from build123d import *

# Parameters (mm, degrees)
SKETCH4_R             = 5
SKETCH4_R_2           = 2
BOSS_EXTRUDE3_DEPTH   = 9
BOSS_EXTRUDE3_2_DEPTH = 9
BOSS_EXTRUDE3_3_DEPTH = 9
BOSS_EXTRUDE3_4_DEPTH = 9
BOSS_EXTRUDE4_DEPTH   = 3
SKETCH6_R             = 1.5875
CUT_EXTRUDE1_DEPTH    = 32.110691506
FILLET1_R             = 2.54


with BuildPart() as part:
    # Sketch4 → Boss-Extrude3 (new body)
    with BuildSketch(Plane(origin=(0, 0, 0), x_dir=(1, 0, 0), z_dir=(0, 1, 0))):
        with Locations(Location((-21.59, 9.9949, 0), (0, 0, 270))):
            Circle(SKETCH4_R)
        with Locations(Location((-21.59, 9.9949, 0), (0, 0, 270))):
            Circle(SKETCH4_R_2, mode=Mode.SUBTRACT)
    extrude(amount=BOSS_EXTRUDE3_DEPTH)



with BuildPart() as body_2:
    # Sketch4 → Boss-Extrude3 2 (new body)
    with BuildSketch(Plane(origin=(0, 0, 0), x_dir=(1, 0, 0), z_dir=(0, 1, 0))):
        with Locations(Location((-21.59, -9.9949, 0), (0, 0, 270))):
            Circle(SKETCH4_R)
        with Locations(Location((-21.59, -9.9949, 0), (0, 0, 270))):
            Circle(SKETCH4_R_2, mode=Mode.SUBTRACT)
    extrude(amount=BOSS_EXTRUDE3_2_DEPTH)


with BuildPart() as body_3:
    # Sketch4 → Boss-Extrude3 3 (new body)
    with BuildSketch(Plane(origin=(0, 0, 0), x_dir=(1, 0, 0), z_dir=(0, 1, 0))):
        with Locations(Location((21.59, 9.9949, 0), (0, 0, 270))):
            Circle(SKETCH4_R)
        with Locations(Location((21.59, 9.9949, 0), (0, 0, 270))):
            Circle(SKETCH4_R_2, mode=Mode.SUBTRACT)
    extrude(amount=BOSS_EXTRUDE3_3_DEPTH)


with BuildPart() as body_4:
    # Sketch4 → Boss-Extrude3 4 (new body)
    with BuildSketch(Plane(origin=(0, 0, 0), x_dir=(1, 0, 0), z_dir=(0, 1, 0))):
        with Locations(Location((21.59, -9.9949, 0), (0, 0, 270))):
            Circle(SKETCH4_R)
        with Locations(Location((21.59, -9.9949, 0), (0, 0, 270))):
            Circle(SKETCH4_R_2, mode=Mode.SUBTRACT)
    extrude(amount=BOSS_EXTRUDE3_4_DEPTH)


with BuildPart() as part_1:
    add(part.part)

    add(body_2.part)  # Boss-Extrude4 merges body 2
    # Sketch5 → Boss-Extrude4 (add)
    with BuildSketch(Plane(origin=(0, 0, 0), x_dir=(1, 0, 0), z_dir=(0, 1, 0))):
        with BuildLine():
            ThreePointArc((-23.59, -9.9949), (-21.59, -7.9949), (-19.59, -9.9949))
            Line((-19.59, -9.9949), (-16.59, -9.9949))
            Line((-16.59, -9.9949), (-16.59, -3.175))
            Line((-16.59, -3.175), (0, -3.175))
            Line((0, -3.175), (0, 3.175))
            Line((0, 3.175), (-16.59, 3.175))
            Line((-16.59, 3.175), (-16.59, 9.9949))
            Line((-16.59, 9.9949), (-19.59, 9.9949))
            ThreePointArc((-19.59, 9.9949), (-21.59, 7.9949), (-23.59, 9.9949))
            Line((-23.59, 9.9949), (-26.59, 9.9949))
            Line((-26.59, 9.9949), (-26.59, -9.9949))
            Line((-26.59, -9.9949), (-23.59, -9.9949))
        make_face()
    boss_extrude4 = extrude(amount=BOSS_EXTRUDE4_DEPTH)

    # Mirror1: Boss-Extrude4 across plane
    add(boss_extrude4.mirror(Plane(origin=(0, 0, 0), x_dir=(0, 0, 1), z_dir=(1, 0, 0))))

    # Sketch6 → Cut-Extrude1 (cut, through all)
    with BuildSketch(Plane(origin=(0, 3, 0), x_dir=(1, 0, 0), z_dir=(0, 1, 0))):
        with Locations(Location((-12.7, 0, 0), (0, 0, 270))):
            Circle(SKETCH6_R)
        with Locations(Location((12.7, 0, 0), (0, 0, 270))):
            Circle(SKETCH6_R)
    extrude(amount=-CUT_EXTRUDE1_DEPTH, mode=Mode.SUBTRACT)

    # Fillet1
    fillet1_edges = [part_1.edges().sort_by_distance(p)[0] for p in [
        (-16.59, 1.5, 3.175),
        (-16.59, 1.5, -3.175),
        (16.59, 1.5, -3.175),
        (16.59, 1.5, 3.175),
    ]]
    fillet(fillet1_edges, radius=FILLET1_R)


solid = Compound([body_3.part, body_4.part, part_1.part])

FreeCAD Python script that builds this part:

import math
import FreeCAD as App
import Part
import Sketcher


def edges_at(feature, points):
    """Names of the edges that pass closest to the given points."""
    edges = feature.Shape.Edges
    near = lambda p: min(range(len(edges)), key=lambda i: edges[i].distToShape(Part.Vertex(*p))[0])
    return sorted({f"Edge{near(p) + 1}" for p in points})

doc = App.newDocument("Part")
body = doc.addObject("PartDesign::Body", "Body")

sketch1 = body.newObject("Sketcher::SketchObject", "Sketch")
sketch1.AttachmentSupport = (doc.getObject("XZ_Plane"), [""])
sketch1.MapMode = "FlatFace"
sketch1.addGeometry([
    Part.Circle(App.Vector(-21.6, -10, 0), App.Vector(0, 0, 1), 5),
    Part.Circle(App.Vector(-21.6, -10, 0), App.Vector(0, 0, 1), 2),
], False)
sketch1.addConstraint([
    Sketcher.Constraint("Coincident", 1, 3, 0, 3),
    Sketcher.Constraint("Diameter", 0, 10.0),
    Sketcher.Constraint("Diameter", 1, 4.0),
    Sketcher.Constraint("DistanceX", 0, 3, -1, 1, 21.59),
    Sketcher.Constraint("DistanceY", 0, 3, -1, 1, 9.9949),
])
pad1 = body.newObject("PartDesign::Pad", "Pad")
pad1.Profile = sketch1
pad1.Length = 9
pad1.Reversed = True
body2 = doc.addObject("PartDesign::Body", "Body001")

sketch2 = body2.newObject("Sketcher::SketchObject", "Sketch001")
sketch2.AttachmentSupport = (doc.getObject("XZ_Plane001"), [""])
sketch2.MapMode = "FlatFace"
sketch2.addGeometry([
    Part.Circle(App.Vector(-21.6, 10, 0), App.Vector(0, 0, 1), 5),
    Part.Circle(App.Vector(-21.6, 10, 0), App.Vector(0, 0, 1), 2),
], False)
sketch2.addConstraint([
    Sketcher.Constraint("Coincident", 1, 3, 0, 3),
    Sketcher.Constraint("Diameter", 0, 10.0),
    Sketcher.Constraint("Diameter", 1, 4.0),
    Sketcher.Constraint("DistanceX", 0, 3, -1, 1, 21.59),
    Sketcher.Constraint("DistanceY", -1, 1, 0, 3, 9.9949),
])
pad2 = body2.newObject("PartDesign::Pad", "Pad001")
pad2.Profile = sketch2
pad2.Length = 9
pad2.Reversed = True
body3 = doc.addObject("PartDesign::Body", "Body002")

sketch3 = body3.newObject("Sketcher::SketchObject", "Sketch002")
sketch3.AttachmentSupport = (doc.getObject("XZ_Plane002"), [""])
sketch3.MapMode = "FlatFace"
sketch3.addGeometry([
    Part.Circle(App.Vector(21.6, -10, 0), App.Vector(0, 0, 1), 5),
    Part.Circle(App.Vector(21.6, -10, 0), App.Vector(0, 0, 1), 2),
], False)
sketch3.addConstraint([
    Sketcher.Constraint("Coincident", 1, 3, 0, 3),
    Sketcher.Constraint("Diameter", 0, 10.0),
    Sketcher.Constraint("Diameter", 1, 4.0),
    Sketcher.Constraint("DistanceX", -1, 1, 0, 3, 21.59),
    Sketcher.Constraint("DistanceY", 0, 3, -1, 1, 9.9949),
])
pad3 = body3.newObject("PartDesign::Pad", "Pad002")
pad3.Profile = sketch3
pad3.Length = 9
pad3.Reversed = True
body4 = doc.addObject("PartDesign::Body", "Body003")

sketch4 = body4.newObject("Sketcher::SketchObject", "Sketch003")
sketch4.AttachmentSupport = (doc.getObject("XZ_Plane003"), [""])
sketch4.MapMode = "FlatFace"
sketch4.addGeometry([
    Part.Circle(App.Vector(21.6, 10, 0), App.Vector(0, 0, 1), 5),
    Part.Circle(App.Vector(21.6, 10, 0), App.Vector(0, 0, 1), 2),
], False)
sketch4.addConstraint([
    Sketcher.Constraint("Coincident", 1, 3, 0, 3),
    Sketcher.Constraint("Diameter", 0, 10.0),
    Sketcher.Constraint("Diameter", 1, 4.0),
    Sketcher.Constraint("DistanceX", -1, 1, 0, 3, 21.59),
    Sketcher.Constraint("DistanceY", -1, 1, 0, 3, 9.9949),
])
pad4 = body4.newObject("PartDesign::Pad", "Pad003")
pad4.Profile = sketch4
pad4.Length = 9
pad4.Reversed = True
body.AllowCompound = True
doc.recompute()

boolean = body.newObject("PartDesign::Boolean", "Boolean")
boolean.Type = "Fuse"
boolean.addObjects([body2])

sketch5 = body.newObject("Sketcher::SketchObject", "Sketch004")
sketch5.AttachmentSupport = (doc.getObject("XZ_Plane"), [""])
sketch5.MapMode = "FlatFace"
sketch5.addGeometry([
    Part.ArcOfCircle(Part.Circle(App.Vector(-21.6, 10, 0), App.Vector(0, 0, 1), 2), math.radians(180), math.radians(360)),
    Part.LineSegment(App.Vector(-19.6, 10, 0), App.Vector(-16.6, 10, 0)),
    Part.LineSegment(App.Vector(-16.6, 10, 0), App.Vector(-16.6, 3.2, 0)),
    Part.LineSegment(App.Vector(-16.6, 3.2, 0), App.Vector(0, 3.2, 0)),
    Part.LineSegment(App.Vector(0, 3.2, 0), App.Vector(0, -3.2, 0)),
    Part.LineSegment(App.Vector(0, -3.2, 0), App.Vector(-16.6, -3.2, 0)),
    Part.LineSegment(App.Vector(-16.6, -3.2, 0), App.Vector(-16.6, -10, 0)),
    Part.LineSegment(App.Vector(-16.6, -10, 0), App.Vector(-19.6, -10, 0)),
    Part.ArcOfCircle(Part.Circle(App.Vector(-21.6, -10, 0), App.Vector(0, 0, 1), 2), math.radians(0), math.radians(180)),
    Part.LineSegment(App.Vector(-23.6, -10, 0), App.Vector(-26.6, -10, 0)),
    Part.LineSegment(App.Vector(-26.6, -10, 0), App.Vector(-26.6, 10, 0)),
    Part.LineSegment(App.Vector(-26.6, 10, 0), App.Vector(-23.6, 10, 0)),
], False)
sketch5.addConstraint([
    Sketcher.Constraint("Coincident", 0, 2, 1, 1),
    Sketcher.Constraint("Coincident", 1, 2, 2, 1),
    Sketcher.Constraint("Coincident", 2, 2, 3, 1),
    Sketcher.Constraint("Coincident", 3, 2, 4, 1),
    Sketcher.Constraint("Coincident", 4, 2, 5, 1),
    Sketcher.Constraint("Coincident", 5, 2, 6, 1),
    Sketcher.Constraint("Coincident", 6, 2, 7, 1),
    Sketcher.Constraint("Coincident", 7, 2, 8, 1),
    Sketcher.Constraint("Coincident", 8, 2, 9, 1),
    Sketcher.Constraint("Coincident", 9, 2, 10, 1),
    Sketcher.Constraint("Coincident", 10, 2, 11, 1),
    Sketcher.Constraint("Coincident", 11, 2, 0, 1),
    Sketcher.Constraint("Horizontal", 1),
    Sketcher.Constraint("Vertical", 2),
    Sketcher.Constraint("Horizontal", 3),
    Sketcher.Constraint("Vertical", 4),
    Sketcher.Constraint("Horizontal", 5),
    Sketcher.Constraint("Vertical", 6),
    Sketcher.Constraint("Horizontal", 7),
    Sketcher.Constraint("Horizontal", 9),
    Sketcher.Constraint("Vertical", 10),
    Sketcher.Constraint("Horizontal", 11),
    Sketcher.Constraint("Equal", 0, 8),
    Sketcher.Constraint("Symmetric", 3, 2, 4, 2, -1, 1),
    Sketcher.Constraint("Symmetric", 0, 3, 8, 3, -1),
    Sketcher.Constraint("Symmetric", 1, 2, 6, 2, -1),
    Sketcher.Constraint("Horizontal", 8, 3, 6, 2),
    Sketcher.Constraint("Horizontal", 7, 2, 8, 2),
    Sketcher.Constraint("Horizontal", 1, 2, 10, 2),
    Sketcher.Constraint("Equal", 7, 9),
    Sketcher.Constraint("Radius", 0, 2.0),
    Sketcher.Constraint("DistanceX", 1, 1, 1, 2, 3.0),
    Sketcher.Constraint("DistanceX", 3, 1, 3, 2, 16.59),
    Sketcher.Constraint("DistanceY", 4, 2, 4, 1, 6.35),
    Sketcher.Constraint("DistanceY", 2, 2, 2, 1, 6.8199),
])
pad5 = body.newObject("PartDesign::Pad", "Pad004")
pad5.Profile = sketch5
pad5.Length = 3
pad5.Reversed = True
doc.recompute()

mirrored = body.newObject("PartDesign::Mirrored", "Mirrored")
mirrored.Originals = [pad5]
mirrored.MirrorPlane = (doc.getObject("YZ_Plane"), [""])
body.Tip = mirrored

sketch6 = body.newObject("Sketcher::SketchObject", "Sketch005")
sketch6.AttachmentSupport = (doc.getObject("XZ_Plane"), [""])
sketch6.MapMode = "FlatFace"
sketch6.AttachmentOffset = App.Placement(App.Vector(0, 0, -3), App.Rotation())
sketch6.addGeometry([
    Part.Circle(App.Vector(-12.7, 0, 0), App.Vector(0, 0, 1), 1.6),
    Part.Circle(App.Vector(12.7, 0, 0), App.Vector(0, 0, 1), 1.6),
], False)
sketch6.addConstraint([
    Sketcher.Constraint("Equal", 0, 1),
    Sketcher.Constraint("Symmetric", 0, 3, 1, 3, -1, 1),
    Sketcher.Constraint("PointOnObject", 0, 3, -1),
    Sketcher.Constraint("Diameter", 0, 3.175),
    Sketcher.Constraint("DistanceX", 0, 3, -1, 1, 12.7),
])
pocket1 = body.newObject("PartDesign::Pocket", "Pocket")
pocket1.Profile = sketch6
pocket1.Type = "ThroughAll"
pocket1.Reversed = True
doc.recompute()

fillet = body.newObject("PartDesign::Fillet", "Fillet")
fillet.Base = (pocket1, edges_at(pocket1, [
    (-16.59, 1.5, 3.175),
    (-16.59, 1.5, -3.175),
    (16.59, 1.5, -3.175),
    (16.59, 1.5, 3.175),
]))
fillet.Radius = 2.54

doc.recompute()
